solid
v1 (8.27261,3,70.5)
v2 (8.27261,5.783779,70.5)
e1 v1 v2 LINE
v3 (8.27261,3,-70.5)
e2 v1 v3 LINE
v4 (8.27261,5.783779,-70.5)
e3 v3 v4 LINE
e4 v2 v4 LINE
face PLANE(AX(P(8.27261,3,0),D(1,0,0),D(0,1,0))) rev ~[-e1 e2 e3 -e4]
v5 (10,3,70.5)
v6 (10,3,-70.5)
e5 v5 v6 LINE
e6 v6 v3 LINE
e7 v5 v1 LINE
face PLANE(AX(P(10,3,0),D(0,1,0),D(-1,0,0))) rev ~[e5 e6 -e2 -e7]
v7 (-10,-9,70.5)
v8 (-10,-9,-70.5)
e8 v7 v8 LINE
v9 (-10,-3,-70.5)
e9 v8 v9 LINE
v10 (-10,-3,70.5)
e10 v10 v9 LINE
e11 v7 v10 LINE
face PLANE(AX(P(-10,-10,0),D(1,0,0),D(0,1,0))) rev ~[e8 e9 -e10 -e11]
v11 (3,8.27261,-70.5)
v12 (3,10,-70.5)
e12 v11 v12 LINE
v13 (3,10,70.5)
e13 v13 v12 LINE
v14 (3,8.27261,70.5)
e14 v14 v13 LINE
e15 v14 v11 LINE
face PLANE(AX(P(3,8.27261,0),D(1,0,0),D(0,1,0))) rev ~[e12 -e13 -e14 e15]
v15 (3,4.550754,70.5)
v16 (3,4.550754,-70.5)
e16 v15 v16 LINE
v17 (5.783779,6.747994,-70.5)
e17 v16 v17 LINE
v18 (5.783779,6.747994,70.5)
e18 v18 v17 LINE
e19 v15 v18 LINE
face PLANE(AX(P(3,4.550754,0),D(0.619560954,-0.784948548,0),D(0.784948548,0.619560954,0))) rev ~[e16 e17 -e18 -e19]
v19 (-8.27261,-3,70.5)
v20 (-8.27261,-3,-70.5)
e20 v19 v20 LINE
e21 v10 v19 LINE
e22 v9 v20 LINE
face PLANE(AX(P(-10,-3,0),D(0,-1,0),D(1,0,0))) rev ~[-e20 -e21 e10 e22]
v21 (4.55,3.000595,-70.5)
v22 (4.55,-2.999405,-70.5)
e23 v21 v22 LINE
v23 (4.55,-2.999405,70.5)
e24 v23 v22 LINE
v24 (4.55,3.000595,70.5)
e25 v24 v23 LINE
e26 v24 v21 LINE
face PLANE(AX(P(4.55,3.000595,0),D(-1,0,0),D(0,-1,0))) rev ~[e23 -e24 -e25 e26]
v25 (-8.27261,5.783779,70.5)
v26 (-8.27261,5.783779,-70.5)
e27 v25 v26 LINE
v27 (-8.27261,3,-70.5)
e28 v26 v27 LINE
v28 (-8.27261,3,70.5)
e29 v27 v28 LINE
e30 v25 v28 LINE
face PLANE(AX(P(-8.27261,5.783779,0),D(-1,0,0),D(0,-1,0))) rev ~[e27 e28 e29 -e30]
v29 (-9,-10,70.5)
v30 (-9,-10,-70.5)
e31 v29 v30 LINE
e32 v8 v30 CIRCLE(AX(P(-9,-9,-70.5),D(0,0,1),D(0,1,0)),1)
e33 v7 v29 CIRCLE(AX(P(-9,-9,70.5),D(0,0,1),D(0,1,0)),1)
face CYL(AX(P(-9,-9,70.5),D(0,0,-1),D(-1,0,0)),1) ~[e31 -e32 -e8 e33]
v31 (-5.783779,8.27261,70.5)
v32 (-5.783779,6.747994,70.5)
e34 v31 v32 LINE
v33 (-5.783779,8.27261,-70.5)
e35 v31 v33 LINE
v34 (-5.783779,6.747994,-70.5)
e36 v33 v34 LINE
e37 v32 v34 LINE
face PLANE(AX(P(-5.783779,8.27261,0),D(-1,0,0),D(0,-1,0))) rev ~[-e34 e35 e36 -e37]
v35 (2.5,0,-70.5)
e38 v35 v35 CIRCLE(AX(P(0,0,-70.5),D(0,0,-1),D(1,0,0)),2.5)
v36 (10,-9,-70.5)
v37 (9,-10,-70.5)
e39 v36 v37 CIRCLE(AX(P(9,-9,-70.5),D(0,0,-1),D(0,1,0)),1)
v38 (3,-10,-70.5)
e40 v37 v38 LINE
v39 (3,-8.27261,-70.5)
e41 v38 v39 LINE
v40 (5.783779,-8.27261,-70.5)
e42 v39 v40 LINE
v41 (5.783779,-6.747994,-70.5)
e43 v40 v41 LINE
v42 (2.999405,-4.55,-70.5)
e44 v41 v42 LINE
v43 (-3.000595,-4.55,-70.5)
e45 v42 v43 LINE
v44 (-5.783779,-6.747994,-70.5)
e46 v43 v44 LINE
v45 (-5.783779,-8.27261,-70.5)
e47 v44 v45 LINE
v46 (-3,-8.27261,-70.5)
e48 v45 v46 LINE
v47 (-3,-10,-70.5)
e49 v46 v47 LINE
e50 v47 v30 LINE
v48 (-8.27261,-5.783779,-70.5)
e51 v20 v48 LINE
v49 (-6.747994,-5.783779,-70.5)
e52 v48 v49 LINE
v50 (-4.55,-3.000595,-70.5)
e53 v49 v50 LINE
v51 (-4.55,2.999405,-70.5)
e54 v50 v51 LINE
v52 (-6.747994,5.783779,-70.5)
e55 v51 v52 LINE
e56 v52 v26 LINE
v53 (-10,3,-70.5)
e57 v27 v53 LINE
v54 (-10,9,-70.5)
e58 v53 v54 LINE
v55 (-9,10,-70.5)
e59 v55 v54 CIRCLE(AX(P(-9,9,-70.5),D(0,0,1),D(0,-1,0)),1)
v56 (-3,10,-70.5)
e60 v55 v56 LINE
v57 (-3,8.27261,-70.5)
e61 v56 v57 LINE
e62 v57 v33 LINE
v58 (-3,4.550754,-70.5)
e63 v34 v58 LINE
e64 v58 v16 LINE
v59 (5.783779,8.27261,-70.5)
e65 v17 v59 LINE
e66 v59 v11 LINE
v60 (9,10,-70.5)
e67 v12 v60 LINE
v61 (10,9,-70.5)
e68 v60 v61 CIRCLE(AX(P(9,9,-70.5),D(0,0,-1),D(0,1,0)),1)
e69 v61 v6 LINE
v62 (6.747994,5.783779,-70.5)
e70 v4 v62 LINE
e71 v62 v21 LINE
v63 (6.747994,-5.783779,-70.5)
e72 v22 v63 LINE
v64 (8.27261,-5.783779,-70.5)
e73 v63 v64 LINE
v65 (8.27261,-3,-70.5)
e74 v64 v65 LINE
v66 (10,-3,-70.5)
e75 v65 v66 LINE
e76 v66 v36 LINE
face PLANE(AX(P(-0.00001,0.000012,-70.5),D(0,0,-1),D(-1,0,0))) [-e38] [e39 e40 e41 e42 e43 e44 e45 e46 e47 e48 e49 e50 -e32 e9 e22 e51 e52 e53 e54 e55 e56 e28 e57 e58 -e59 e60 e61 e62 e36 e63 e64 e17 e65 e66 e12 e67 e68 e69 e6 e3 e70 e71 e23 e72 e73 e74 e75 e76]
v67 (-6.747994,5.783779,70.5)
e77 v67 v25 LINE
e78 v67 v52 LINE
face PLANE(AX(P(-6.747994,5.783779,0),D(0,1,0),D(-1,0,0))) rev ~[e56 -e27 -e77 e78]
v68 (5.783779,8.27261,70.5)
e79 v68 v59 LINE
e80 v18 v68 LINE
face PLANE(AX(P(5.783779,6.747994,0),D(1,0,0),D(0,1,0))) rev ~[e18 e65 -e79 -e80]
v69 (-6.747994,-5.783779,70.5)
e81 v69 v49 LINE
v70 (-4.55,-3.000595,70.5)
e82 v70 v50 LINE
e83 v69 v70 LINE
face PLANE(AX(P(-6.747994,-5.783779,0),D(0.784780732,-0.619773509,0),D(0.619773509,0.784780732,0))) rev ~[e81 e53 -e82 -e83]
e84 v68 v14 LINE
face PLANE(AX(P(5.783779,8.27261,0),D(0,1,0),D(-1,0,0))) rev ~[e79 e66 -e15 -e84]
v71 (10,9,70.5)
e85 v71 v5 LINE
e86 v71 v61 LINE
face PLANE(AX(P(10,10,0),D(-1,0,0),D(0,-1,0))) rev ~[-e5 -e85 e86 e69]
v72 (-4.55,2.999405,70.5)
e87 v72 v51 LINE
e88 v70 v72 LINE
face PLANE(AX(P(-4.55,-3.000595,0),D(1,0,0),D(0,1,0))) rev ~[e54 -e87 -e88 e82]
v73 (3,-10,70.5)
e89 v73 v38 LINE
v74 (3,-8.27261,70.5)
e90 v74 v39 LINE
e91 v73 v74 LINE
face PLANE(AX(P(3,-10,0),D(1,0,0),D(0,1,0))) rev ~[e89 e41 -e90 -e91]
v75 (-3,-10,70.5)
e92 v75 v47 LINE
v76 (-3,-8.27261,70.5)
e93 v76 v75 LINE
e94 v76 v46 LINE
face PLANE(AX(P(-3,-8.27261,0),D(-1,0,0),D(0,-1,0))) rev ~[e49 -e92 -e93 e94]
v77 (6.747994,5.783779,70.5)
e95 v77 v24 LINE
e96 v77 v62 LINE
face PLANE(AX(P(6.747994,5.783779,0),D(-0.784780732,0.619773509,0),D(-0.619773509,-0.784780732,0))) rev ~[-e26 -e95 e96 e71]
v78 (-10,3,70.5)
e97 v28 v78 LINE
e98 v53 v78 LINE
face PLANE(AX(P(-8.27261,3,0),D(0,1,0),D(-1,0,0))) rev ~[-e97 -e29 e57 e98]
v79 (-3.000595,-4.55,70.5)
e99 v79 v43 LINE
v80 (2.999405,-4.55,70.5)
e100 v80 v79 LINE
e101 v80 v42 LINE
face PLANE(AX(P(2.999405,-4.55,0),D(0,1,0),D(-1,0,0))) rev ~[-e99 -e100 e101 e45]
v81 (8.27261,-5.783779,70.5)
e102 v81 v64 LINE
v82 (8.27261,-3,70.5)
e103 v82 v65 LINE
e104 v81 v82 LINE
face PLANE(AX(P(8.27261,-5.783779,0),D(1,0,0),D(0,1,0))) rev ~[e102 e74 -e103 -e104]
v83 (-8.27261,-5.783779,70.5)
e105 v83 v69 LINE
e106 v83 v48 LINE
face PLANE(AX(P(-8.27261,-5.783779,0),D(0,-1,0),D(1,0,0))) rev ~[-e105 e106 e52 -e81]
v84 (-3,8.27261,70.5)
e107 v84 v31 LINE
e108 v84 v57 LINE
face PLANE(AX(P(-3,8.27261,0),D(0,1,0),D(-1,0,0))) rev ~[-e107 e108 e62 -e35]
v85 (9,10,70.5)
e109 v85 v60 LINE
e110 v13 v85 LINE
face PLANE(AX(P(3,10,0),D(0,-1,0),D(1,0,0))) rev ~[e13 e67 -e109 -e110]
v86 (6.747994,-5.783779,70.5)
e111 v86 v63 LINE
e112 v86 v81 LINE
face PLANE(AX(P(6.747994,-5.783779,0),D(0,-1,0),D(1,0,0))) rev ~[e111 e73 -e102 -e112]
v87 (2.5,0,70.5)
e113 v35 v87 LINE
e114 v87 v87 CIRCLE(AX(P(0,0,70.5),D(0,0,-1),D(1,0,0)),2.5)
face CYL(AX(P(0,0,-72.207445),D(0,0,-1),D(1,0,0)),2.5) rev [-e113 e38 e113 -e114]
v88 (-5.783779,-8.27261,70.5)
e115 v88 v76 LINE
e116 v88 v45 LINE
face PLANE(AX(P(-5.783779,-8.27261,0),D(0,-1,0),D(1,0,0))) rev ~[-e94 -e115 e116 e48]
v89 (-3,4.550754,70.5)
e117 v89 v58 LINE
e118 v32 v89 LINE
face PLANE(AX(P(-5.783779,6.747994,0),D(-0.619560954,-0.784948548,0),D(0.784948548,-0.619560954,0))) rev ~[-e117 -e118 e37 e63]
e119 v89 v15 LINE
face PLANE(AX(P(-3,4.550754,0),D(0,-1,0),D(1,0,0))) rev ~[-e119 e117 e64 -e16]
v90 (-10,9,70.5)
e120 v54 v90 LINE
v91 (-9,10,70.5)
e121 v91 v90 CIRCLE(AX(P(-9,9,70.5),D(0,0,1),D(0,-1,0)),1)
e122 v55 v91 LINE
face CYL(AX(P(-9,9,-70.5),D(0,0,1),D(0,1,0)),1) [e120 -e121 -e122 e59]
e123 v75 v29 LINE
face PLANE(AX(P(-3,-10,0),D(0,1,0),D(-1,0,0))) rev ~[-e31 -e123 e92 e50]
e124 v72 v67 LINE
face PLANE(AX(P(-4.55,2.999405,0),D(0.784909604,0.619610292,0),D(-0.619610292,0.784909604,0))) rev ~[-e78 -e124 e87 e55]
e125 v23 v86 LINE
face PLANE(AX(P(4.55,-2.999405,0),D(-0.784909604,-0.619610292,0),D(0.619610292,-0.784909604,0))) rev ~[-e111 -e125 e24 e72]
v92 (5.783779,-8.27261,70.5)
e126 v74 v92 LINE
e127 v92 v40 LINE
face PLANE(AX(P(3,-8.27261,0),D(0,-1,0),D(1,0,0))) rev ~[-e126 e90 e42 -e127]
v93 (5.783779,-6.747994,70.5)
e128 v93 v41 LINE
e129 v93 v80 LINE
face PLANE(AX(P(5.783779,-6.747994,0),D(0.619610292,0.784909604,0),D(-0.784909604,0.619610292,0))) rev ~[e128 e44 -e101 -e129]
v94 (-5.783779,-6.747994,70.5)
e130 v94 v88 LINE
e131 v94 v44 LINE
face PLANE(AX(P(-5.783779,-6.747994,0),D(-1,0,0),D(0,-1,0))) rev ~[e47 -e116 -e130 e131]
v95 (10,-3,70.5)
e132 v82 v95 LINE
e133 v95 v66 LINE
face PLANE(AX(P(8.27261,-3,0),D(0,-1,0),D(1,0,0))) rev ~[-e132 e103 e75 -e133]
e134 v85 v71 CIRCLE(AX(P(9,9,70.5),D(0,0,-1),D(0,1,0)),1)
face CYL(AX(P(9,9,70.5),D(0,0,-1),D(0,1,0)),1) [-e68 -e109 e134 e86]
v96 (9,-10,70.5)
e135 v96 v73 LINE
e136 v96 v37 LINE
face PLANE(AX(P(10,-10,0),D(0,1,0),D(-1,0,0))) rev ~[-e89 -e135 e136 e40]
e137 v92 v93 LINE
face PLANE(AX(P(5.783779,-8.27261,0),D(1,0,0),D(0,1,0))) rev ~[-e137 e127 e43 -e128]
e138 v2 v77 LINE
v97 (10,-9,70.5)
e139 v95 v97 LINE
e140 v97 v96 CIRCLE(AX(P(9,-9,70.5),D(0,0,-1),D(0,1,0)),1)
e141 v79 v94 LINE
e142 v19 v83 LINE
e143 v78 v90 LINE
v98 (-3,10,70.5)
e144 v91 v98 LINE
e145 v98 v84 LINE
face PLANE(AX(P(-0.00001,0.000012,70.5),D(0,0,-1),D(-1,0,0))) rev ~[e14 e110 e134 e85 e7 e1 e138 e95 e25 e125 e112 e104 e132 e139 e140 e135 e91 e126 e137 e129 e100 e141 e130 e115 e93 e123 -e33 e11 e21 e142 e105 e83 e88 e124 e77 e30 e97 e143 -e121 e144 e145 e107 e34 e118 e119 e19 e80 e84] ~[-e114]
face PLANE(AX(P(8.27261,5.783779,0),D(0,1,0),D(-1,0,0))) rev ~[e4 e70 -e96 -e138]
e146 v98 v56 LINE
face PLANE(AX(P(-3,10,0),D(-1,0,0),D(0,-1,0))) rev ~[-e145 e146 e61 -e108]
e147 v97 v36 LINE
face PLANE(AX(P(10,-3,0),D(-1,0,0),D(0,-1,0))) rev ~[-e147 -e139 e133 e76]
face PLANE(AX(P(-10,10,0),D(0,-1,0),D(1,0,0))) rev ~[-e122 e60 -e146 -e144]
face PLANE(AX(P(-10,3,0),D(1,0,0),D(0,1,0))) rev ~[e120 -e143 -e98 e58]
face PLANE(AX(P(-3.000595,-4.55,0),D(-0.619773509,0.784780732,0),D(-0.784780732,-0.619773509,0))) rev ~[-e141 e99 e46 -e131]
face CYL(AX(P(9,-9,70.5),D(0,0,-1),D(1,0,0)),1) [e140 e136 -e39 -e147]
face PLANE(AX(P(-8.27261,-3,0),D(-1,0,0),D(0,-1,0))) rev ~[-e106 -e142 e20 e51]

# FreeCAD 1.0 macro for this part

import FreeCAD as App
import Part
import Sketcher
Q = App.Units.Quantity


def edges_at(feature, points):
    """Names of the edges that pass closest to the given points."""
    edges = feature.Shape.Edges
    near = lambda p: min(range(len(edges)), key=lambda i: edges[i].distToShape(Part.Vertex(*p))[0])
    return sorted({f"Edge{near(p) + 1}" for p in points})

doc = App.newDocument("Part")
params = doc.addObject("Spreadsheet::Sheet", "Params")
for row, (alias, value) in enumerate([
    ("sketch1_width", "7 mm"),
    ("sketch1_width2", "6 mm"),
    ("pad1_length", "141 mm"),
    ("sketch2_diameter", "5 mm"),
    ("fillet_radius", "1 mm"),
], start=1):
    params.set(f"A{row}", alias)
    params.set(f"B{row}", "=" + value)
    params.setAlias(f"B{row}", alias)

body = doc.addObject("PartDesign::Body", "Body")

sketch1 = doc.addObject("Sketcher::SketchObject", "Sketch")
body.addObject(sketch1)
sketch1.AttachmentSupport = (doc.XY_Plane, [""])
sketch1.MapMode = "FlatFace"
sketch1.addGeometry([
    Part.LineSegment(App.Vector(-3, 10, 0), App.Vector(-10, 10, 0)),
    Part.LineSegment(App.Vector(-10, 10, 0), App.Vector(-10, 3, 0)),
    Part.LineSegment(App.Vector(-10, 3, 0), App.Vector(-8.3, 3, 0)),
    Part.LineSegment(App.Vector(-8.3, 3, 0), App.Vector(-8.3, 5.8, 0)),
    Part.LineSegment(App.Vector(-8.3, 5.8, 0), App.Vector(-6.7, 5.8, 0)),
    Part.LineSegment(App.Vector(-6.7, 5.8, 0), App.Vector(-4.5, 3, 0)),
    Part.LineSegment(App.Vector(-4.5, 3, 0), App.Vector(-4.5, -3, 0)),
    Part.LineSegment(App.Vector(-4.5, -3, 0), App.Vector(-6.7, -5.8, 0)),
    Part.LineSegment(App.Vector(-6.7, -5.8, 0), App.Vector(-8.3, -5.8, 0)),
    Part.LineSegment(App.Vector(-8.3, -5.8, 0), App.Vector(-8.3, -3, 0)),
    Part.LineSegment(App.Vector(-8.3, -3, 0), App.Vector(-10, -3, 0)),
    Part.LineSegment(App.Vector(-10, -3, 0), App.Vector(-10, -10, 0)),
    Part.LineSegment(App.Vector(-10, -10, 0), App.Vector(-3, -10, 0)),
    Part.LineSegment(App.Vector(-3, -10, 0), App.Vector(-3, -8.3, 0)),
    Part.LineSegment(App.Vector(-3, -8.3, 0), App.Vector(-5.8, -8.3, 0)),
    Part.LineSegment(App.Vector(-5.8, -8.3, 0), App.Vector(-5.8, -6.7, 0)),
    Part.LineSegment(App.Vector(-5.8, -6.7, 0), App.Vector(-3, -4.5, 0)),
    Part.LineSegment(App.Vector(-3, -4.5, 0), App.Vector(3, -4.5, 0)),
    Part.LineSegment(App.Vector(3, -4.5, 0), App.Vector(5.8, -6.7, 0)),
    Part.LineSegment(App.Vector(5.8, -6.7, 0), App.Vector(5.8, -8.3, 0)),
    Part.LineSegment(App.Vector(5.8, -8.3, 0), App.Vector(3, -8.3, 0)),
    Part.LineSegment(App.Vector(3, -8.3, 0), App.Vector(3, -10, 0)),
    Part.LineSegment(App.Vector(3, -10, 0), App.Vector(10, -10, 0)),
    Part.LineSegment(App.Vector(10, -10, 0), App.Vector(10, -3, 0)),
    Part.LineSegment(App.Vector(10, -3, 0), App.Vector(8.3, -3, 0)),
    Part.LineSegment(App.Vector(8.3, -3, 0), App.Vector(8.3, -5.8, 0)),
    Part.LineSegment(App.Vector(8.3, -5.8, 0), App.Vector(6.7, -5.8, 0)),
    Part.LineSegment(App.Vector(6.7, -5.8, 0), App.Vector(4.5, -3, 0)),
    Part.LineSegment(App.Vector(4.5, -3, 0), App.Vector(4.5, 3, 0)),
    Part.LineSegment(App.Vector(4.5, 3, 0), App.Vector(6.7, 5.8, 0)),
    Part.LineSegment(App.Vector(6.7, 5.8, 0), App.Vector(8.3, 5.8, 0)),
    Part.LineSegment(App.Vector(8.3, 5.8, 0), App.Vector(8.3, 3, 0)),
    Part.LineSegment(App.Vector(8.3, 3, 0), App.Vector(10, 3, 0)),
    Part.LineSegment(App.Vector(10, 3, 0), App.Vector(10, 10, 0)),
    Part.LineSegment(App.Vector(10, 10, 0), App.Vector(3, 10, 0)),
    Part.LineSegment(App.Vector(3, 10, 0), App.Vector(3, 8.3, 0)),
    Part.LineSegment(App.Vector(3, 8.3, 0), App.Vector(5.8, 8.3, 0)),
    Part.LineSegment(App.Vector(5.8, 8.3, 0), App.Vector(5.8, 6.7, 0)),
    Part.LineSegment(App.Vector(5.8, 6.7, 0), App.Vector(3, 4.6, 0)),
    Part.LineSegment(App.Vector(3, 4.6, 0), App.Vector(-3, 4.6, 0)),
    Part.LineSegment(App.Vector(-3, 4.6, 0), App.Vector(-5.8, 6.7, 0)),
    Part.LineSegment(App.Vector(-5.8, 6.7, 0), App.Vector(-5.8, 8.3, 0)),
    Part.LineSegment(App.Vector(-5.8, 8.3, 0), App.Vector(-3, 8.3, 0)),
    Part.LineSegment(App.Vector(-3, 8.3, 0), App.Vector(-3, 10, 0)),
], False)
sketch1.addConstraint([
    Sketcher.Constraint("Coincident", 0, 2, 1, 1),
    Sketcher.Constraint("Coincident", 1, 2, 2, 1),
    Sketcher.Constraint("Coincident", 2, 2, 3, 1),
    Sketcher.Constraint("Coincident", 3, 2, 4, 1),
    Sketcher.Constraint("Coincident", 4, 2, 5, 1),
    Sketcher.Constraint("Coincident", 5, 2, 6, 1),
    Sketcher.Constraint("Coincident", 6, 2, 7, 1),
    Sketcher.Constraint("Coincident", 7, 2, 8, 1),
    Sketcher.Constraint("Coincident", 8, 2, 9, 1),
    Sketcher.Constraint("Coincident", 9, 2, 10, 1),
    Sketcher.Constraint("Coincident", 10, 2, 11, 1),
    Sketcher.Constraint("Coincident", 11, 2, 12, 1),
    Sketcher.Constraint("Coincident", 12, 2, 13, 1),
    Sketcher.Constraint("Coincident", 13, 2, 14, 1),
    Sketcher.Constraint("Coincident", 14, 2, 15, 1),
    Sketcher.Constraint("Coincident", 15, 2, 16, 1),
    Sketcher.Constraint("Coincident", 16, 2, 17, 1),
    Sketcher.Constraint("Coincident", 17, 2, 18, 1),
    Sketcher.Constraint("Coincident", 18, 2, 19, 1),
    Sketcher.Constraint("Coincident", 19, 2, 20, 1),
    Sketcher.Constraint("Coincident", 20, 2, 21, 1),
    Sketcher.Constraint("Coincident", 21, 2, 22, 1),
    Sketcher.Constraint("Coincident", 22, 2, 23, 1),
    Sketcher.Constraint("Coincident", 23, 2, 24, 1),
    Sketcher.Constraint("Coincident", 24, 2, 25, 1),
    Sketcher.Constraint("Coincident", 25, 2, 26, 1),
    Sketcher.Constraint("Coincident", 26, 2, 27, 1),
    Sketcher.Constraint("Coincident", 27, 2, 28, 1),
    Sketcher.Constraint("Coincident", 28, 2, 29, 1),
    Sketcher.Constraint("Coincident", 29, 2, 30, 1),
    Sketcher.Constraint("Coincident", 30, 2, 31, 1),
    Sketcher.Constraint("Coincident", 31, 2, 32, 1),
    Sketcher.Constraint("Coincident", 32, 2, 33, 1),
    Sketcher.Constraint("Coincident", 33, 2, 34, 1),
    Sketcher.Constraint("Coincident", 34, 2, 35, 1),
    Sketcher.Constraint("Coincident", 35, 2, 36, 1),
    Sketcher.Constraint("Coincident", 36, 2, 37, 1),
    Sketcher.Constraint("Coincident", 37, 2, 38, 1),
    Sketcher.Constraint("Coincident", 38, 2, 39, 1),
    Sketcher.Constraint("Coincident", 39, 2, 40, 1),
    Sketcher.Constraint("Coincident", 40, 2, 41, 1),
    Sketcher.Constraint("Coincident", 41, 2, 42, 1),
    Sketcher.Constraint("Coincident", 42, 2, 43, 1),
    Sketcher.Constraint("Coincident", 43, 2, 0, 1),
    Sketcher.Constraint("Horizontal", 0),
    Sketcher.Constraint("Vertical", 1),
    Sketcher.Constraint("Horizontal", 2),
    Sketcher.Constraint("Vertical", 3),
    Sketcher.Constraint("Horizontal", 4),
    Sketcher.Constraint("Vertical", 6),
    Sketcher.Constraint("Horizontal", 8),
    Sketcher.Constraint("Vertical", 9),
    Sketcher.Constraint("Horizontal", 10),
    Sketcher.Constraint("Vertical", 11),
    Sketcher.Constraint("Horizontal", 12),
    Sketcher.Constraint("Vertical", 13),
    Sketcher.Constraint("Horizontal", 14),
    Sketcher.Constraint("Vertical", 15),
    Sketcher.Constraint("Horizontal", 17),
    Sketcher.Constraint("Vertical", 19),
    Sketcher.Constraint("Horizontal", 20),
    Sketcher.Constraint("Vertical", 21),
    Sketcher.Constraint("Horizontal", 22),
    Sketcher.Constraint("Vertical", 23),
    Sketcher.Constraint("Horizontal", 24),
    Sketcher.Constraint("Vertical", 25),
    Sketcher.Constraint("Horizontal", 26),
    Sketcher.Constraint("Vertical", 28),
    Sketcher.Constraint("Horizontal", 30),
    Sketcher.Constraint("Vertical", 31),
    Sketcher.Constraint("Horizontal", 32),
    Sketcher.Constraint("Vertical", 33),
    Sketcher.Constraint("Horizontal", 34),
    Sketcher.Constraint("Vertical", 35),
    Sketcher.Constraint("Horizontal", 36),
    Sketcher.Constraint("Vertical", 37),
    Sketcher.Constraint("Horizontal", 39),
    Sketcher.Constraint("Vertical", 41),
    Sketcher.Constraint("Horizontal", 42),
    Sketcher.Constraint("Vertical", 43),
    Sketcher.Constraint("Symmetric", 0, 2, 22, 2, -1, 1),
    Sketcher.Constraint("Symmetric", 2, 2, 24, 2, -1, 1),
    Sketcher.Constraint("Symmetric", 4, 2, 26, 2, -1, 1),
    Sketcher.Constraint("Symmetric", 5, 2, 27, 2, -1, 1),
    Sketcher.Constraint("Symmetric", 7, 2, 29, 2, -1, 1),
    Sketcher.Constraint("Symmetric", 9, 2, 31, 2, -1, 1),
    Sketcher.Constraint("Symmetric", 11, 2, 33, 2, -1, 1),
    Sketcher.Constraint("Symmetric", 13, 2, 35, 2, -1, 1),
    Sketcher.Constraint("Symmetric", 15, 2, 37, 2, -1, 1),
    Sketcher.Constraint("Symmetric", 18, 2, 40, 2, -1, 1),
    Sketcher.Constraint("Symmetric", 20, 2, 42, 2, -1, 1),
    Sketcher.Constraint("Symmetric", 15, 2, 18, 2, -2),
    Sketcher.Constraint("Symmetric", 13, 2, 20, 2, -2),
    Sketcher.Constraint("Symmetric", 11, 2, 22, 2, -2),
    Sketcher.Constraint("Symmetric", 9, 2, 24, 2, -2),
    Sketcher.Constraint("Symmetric", 7, 2, 26, 2, -2),
    Sketcher.Constraint("Parallel", 7, 29),
    Sketcher.Constraint("Vertical", 35, 2, 38, 2),
    Sketcher.Constraint("Vertical", 13, 2, 39, 2),
    Sketcher.Constraint("Equal", 17, 39),
    Sketcher.Constraint("Equal", 34, 1),
    Sketcher.Constraint("Equal", 42, 3),
    Sketcher.Constraint("Equal", 39, 6),
    Sketcher.Constraint("Equal", 32, 13),
    Sketcher.Constraint("Equal", 30, 15),
    Sketcher.Constraint("Equal", 7, 16),
    Sketcher.Constraint("Equal", 5, 18),
    Sketcher.Constraint("Equal", 29, 38),
    Sketcher.Constraint("DistanceX", 0, 2, 0, 1, Q("7 mm")),
    Sketcher.Constraint("DistanceX", 17, 1, 17, 2, Q("6 mm")),
    Sketcher.Constraint("DistanceY", -1, 1, 0, 2, Q("10 mm")),
    Sketcher.Constraint("DistanceX", 5, 2, -1, 1, Q("4.55 mm")),
    Sketcher.Constraint("DistanceX", 2, 1, 2, 2, Q("1.72739 mm")),
    Sketcher.Constraint("DistanceX", 14, 2, 14, 1, Q("2.783779 mm")),
    Sketcher.Constraint("DistanceY", 15, 2, 6, 2, Q("3.747399 mm")),
    Sketcher.Constraint("Distance", 5, Q("3.547382 mm")),
])
sketch1.setExpression("Constraints[108]", "Params.sketch1_width")
sketch1.setExpression("Constraints[109]", "Params.sketch1_width2")
pad1 = doc.addObject("PartDesign::Pad", "Pad")
body.addObject(pad1)
pad1.Profile = sketch1
pad1.setExpression("Length", "Params.pad1_length")
pad1.Midplane = True

sketch2 = doc.addObject("Sketcher::SketchObject", "Sketch001")
body.addObject(sketch2)
sketch2.AttachmentSupport = (doc.XY_Plane, [""])
sketch2.MapMode = "FlatFace"
sketch2.AttachmentOffset = App.Placement(App.Vector(0, 0, 70.5), App.Rotation())
sketch2.addGeometry(Part.Circle(App.Vector(0, 0, 0), App.Vector(0, 0, 1), 2.5), False)
sketch2.addConstraint([
    Sketcher.Constraint("Coincident", 0, 3, -1, 1),
    Sketcher.Constraint("Diameter", 0, Q("5 mm")),
])
sketch2.setExpression("Constraints[1]", "Params.sketch2_diameter")
pocket1 = doc.addObject("PartDesign::Pocket", "Pocket")
body.addObject(pocket1)
pocket1.Profile = sketch2
pocket1.Type = "ThroughAll"
pocket1.Midplane = True
doc.recompute()

fillet = doc.addObject("PartDesign::Fillet", "Fillet")
body.addObject(fillet)
fillet.Base = (pocket1, edges_at(pocket1, [
    (-10, 10, 0),
    (10, 10, 0),
    (10, -10, 0),
    (-10, -10, 0),
]))
fillet.setExpression("Radius", "Params.fillet_radius")

doc.recompute()
